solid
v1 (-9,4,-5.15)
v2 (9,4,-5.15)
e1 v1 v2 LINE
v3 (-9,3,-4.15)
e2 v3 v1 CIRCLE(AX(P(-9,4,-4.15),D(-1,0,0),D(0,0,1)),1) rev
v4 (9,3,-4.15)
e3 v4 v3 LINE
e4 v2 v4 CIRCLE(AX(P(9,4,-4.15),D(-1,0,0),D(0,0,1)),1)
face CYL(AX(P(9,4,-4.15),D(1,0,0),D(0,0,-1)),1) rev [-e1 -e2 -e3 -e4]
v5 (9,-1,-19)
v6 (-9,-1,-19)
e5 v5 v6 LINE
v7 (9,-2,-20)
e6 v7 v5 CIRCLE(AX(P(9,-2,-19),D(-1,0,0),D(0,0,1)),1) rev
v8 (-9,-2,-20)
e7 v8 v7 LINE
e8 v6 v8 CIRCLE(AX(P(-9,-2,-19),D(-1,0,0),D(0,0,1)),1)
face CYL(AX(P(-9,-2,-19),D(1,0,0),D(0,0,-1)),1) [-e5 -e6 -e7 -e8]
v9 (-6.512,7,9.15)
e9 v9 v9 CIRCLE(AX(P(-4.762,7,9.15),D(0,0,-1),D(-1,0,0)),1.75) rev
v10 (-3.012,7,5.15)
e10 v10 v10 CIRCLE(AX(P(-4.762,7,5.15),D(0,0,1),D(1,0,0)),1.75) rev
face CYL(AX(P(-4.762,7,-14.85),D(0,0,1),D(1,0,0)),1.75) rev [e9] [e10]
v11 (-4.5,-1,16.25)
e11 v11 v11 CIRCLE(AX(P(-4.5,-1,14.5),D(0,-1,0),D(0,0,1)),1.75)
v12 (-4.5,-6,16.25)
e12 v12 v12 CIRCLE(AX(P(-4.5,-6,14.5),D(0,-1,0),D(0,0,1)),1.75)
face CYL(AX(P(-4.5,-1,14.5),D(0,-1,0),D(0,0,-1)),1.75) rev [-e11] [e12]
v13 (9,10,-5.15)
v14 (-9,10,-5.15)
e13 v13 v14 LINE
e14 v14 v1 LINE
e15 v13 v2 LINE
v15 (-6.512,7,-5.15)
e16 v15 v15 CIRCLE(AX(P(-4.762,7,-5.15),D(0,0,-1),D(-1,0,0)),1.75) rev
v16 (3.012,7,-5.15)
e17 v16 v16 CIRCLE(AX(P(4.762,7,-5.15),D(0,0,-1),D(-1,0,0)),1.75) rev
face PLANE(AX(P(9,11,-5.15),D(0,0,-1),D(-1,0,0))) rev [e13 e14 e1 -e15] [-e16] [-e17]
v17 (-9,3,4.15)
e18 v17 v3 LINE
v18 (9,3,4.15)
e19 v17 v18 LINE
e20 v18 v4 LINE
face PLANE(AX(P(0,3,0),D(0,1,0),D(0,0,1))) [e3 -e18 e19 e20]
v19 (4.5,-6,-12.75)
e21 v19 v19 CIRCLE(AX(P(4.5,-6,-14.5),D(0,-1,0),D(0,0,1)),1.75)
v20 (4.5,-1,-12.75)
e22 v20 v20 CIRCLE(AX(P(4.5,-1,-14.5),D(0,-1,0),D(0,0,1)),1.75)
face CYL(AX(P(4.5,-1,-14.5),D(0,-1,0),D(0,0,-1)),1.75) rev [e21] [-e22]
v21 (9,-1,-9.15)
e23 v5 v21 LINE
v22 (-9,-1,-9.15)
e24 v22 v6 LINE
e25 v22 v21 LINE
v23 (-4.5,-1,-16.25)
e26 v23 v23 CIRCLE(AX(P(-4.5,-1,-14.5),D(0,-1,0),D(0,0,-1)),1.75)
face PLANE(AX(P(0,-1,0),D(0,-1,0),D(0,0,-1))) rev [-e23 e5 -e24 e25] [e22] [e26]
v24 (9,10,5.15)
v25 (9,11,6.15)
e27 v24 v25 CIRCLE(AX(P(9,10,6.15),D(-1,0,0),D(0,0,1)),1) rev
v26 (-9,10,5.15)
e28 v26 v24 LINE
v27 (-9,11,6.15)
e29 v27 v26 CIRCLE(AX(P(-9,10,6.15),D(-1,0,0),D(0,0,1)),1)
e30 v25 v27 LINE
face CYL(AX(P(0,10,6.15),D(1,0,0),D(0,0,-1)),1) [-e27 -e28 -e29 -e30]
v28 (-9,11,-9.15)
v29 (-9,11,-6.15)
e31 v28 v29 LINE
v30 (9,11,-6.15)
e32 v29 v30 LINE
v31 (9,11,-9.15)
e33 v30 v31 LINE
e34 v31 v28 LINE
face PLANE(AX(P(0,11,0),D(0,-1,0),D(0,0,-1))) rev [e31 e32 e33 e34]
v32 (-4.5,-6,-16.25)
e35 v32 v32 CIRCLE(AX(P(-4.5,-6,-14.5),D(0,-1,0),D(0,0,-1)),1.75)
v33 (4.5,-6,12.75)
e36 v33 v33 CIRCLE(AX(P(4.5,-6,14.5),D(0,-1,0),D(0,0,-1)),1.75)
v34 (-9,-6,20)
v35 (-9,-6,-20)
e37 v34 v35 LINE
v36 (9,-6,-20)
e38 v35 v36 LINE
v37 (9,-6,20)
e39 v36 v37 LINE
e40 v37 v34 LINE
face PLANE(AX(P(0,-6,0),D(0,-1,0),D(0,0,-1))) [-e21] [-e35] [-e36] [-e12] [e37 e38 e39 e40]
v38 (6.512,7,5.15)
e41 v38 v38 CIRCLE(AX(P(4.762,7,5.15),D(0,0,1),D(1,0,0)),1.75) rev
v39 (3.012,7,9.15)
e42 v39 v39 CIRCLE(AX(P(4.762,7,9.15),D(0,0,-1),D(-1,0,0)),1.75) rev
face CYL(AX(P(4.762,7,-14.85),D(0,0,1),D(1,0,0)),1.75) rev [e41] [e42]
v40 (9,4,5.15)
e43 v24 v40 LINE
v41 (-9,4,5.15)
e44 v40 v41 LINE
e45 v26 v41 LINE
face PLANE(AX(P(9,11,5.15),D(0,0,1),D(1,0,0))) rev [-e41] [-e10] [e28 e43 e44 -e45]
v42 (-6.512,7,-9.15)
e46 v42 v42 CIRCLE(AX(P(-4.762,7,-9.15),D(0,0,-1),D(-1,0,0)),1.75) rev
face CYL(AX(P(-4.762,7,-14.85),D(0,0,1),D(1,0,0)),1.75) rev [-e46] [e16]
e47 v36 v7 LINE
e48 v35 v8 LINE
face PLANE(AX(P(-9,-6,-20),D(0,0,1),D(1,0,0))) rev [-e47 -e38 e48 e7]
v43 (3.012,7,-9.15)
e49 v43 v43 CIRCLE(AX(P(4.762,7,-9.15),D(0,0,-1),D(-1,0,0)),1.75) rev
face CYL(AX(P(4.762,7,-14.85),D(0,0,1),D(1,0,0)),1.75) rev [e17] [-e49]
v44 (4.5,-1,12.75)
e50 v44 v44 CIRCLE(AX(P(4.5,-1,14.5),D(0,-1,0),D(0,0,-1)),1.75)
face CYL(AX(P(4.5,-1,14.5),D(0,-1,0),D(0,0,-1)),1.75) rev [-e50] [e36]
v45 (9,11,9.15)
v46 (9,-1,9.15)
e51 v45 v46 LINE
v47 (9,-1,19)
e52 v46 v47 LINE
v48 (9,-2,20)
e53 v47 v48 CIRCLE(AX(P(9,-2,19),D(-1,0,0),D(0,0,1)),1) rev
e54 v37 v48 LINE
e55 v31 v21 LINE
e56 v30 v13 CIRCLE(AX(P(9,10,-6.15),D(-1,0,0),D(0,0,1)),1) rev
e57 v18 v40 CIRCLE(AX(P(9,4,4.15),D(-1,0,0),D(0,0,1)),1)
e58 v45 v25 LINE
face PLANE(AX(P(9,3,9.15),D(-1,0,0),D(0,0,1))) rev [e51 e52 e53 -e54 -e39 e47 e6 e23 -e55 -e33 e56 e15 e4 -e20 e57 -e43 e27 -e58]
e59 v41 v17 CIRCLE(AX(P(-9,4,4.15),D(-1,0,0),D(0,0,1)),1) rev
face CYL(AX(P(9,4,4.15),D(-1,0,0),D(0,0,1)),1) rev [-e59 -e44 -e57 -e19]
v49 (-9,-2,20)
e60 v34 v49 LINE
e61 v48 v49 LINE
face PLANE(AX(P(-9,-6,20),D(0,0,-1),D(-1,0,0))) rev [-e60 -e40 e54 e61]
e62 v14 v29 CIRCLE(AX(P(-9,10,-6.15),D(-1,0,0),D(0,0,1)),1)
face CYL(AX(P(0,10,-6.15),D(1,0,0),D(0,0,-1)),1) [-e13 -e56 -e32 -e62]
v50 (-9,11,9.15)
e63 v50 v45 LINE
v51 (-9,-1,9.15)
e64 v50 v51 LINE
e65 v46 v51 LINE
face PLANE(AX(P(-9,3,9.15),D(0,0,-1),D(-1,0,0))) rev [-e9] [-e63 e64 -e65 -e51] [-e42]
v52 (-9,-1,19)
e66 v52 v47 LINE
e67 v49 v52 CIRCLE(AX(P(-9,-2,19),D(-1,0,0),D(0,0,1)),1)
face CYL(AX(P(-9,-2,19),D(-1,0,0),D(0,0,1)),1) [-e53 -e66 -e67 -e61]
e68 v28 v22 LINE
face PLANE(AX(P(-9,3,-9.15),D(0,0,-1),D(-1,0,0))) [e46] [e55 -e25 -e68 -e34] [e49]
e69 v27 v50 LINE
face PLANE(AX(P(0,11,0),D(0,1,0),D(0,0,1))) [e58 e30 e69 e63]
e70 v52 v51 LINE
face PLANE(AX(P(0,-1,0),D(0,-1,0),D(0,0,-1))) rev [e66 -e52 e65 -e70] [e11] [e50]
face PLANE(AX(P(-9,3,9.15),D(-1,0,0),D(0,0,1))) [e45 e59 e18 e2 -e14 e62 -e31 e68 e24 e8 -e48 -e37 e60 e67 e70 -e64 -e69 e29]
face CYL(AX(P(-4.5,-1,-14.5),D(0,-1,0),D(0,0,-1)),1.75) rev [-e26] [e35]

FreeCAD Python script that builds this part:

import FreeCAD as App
import Part
import Sketcher

V = App.Vector
Q = App.Units.Quantity


def edges_at(feature, points):
    """Names of the edges that pass closest to the given points."""
    edges = feature.Shape.Edges
    near = lambda p: min(range(len(edges)), key=lambda i: edges[i].distToShape(Part.Vertex(*p))[0])
    return sorted({f"Edge{near(p) + 1}" for p in points})


def add_polygon(sketch, points):
    """Adds a closed chain of lines whose ends are joined by coincident constraints."""
    first, n = sketch.GeometryCount, len(points)
    for a, b in zip(points, points[1:] + points[:1]):
        sketch.addGeometry(Part.LineSegment(App.Vector(*a, 0), App.Vector(*b, 0)), False)
    for i in range(n):
        sketch.addConstraint(Sketcher.Constraint("Coincident", first + i, 2, first + (i + 1) % n, 1))

doc = App.newDocument("Part")
body = doc.addObject("PartDesign::Body", "Body")

sketch1 = body.newObject("Sketcher::SketchObject", "Sketch")
sketch1.AttachmentSupport = (doc.getObject("XZ_Plane"), [""])
sketch1.MapMode = "FlatFace"
add_polygon(sketch1, [(-9, -9), (-9, 9), (9, 9), (9, -9)])
sketch1.addConstraint(Sketcher.Constraint("Vertical", 0))
sketch1.addConstraint(Sketcher.Constraint("Horizontal", 1))
sketch1.addConstraint(Sketcher.Constraint("Vertical", 2))
sketch1.addConstraint(Sketcher.Constraint("Horizontal", 3))
sketch1.addConstraint(Sketcher.Constraint("Symmetric", 0, 2, 2, 2, -1, 1))
sketch1.addConstraint(Sketcher.Constraint("DistanceX", 1, 1, 1, 2, Q("18 mm")))
sketch1.addConstraint(Sketcher.Constraint("DistanceY", 0, 1, 0, 2, Q("18.3 mm")))
pad1 = body.newObject("PartDesign::Pad", "Pad")
pad1.Profile = sketch1
pad1.Length = 3
pad1.Reversed = True

sketch2 = body.newObject("Sketcher::SketchObject", "Sketch001")
sketch2.AttachmentSupport = (doc.getObject("XZ_Plane"), [""])
sketch2.MapMode = "FlatFace"
sketch2.AttachmentOffset = App.Placement(V(0, 0, -3), App.Rotation())
add_polygon(sketch2, [(-9, 5.2), (-9, 9.2), (9, 9.2), (9, 5.2)])
add_polygon(sketch2, [(-9, -9.2), (-9, -5.2), (9, -5.2), (9, -9.2)])
sketch2.addConstraint(Sketcher.Constraint("Vertical", 0))
sketch2.addConstraint(Sketcher.Constraint("Horizontal", 1))
sketch2.addConstraint(Sketcher.Constraint("Vertical", 2))
sketch2.addConstraint(Sketcher.Constraint("Horizontal", 3))
sketch2.addConstraint(Sketcher.Constraint("Vertical", 4))
sketch2.addConstraint(Sketcher.Constraint("Horizontal", 5))
sketch2.addConstraint(Sketcher.Constraint("Vertical", 6))
sketch2.addConstraint(Sketcher.Constraint("Horizontal", 7))
sketch2.addConstraint(Sketcher.Constraint("Symmetric", 2, 2, 4, 2, -1, 1))
sketch2.addConstraint(Sketcher.Constraint("Symmetric", 0, 2, 6, 2, -1, 1))
sketch2.addConstraint(Sketcher.Constraint("Vertical", 3, 2, 4, 2))
sketch2.addConstraint(Sketcher.Constraint("DistanceX", 1, 1, 1, 2, Q("18 mm")))
sketch2.addConstraint(Sketcher.Constraint("DistanceY", 0, 1, 0, 2, Q("4 mm")))
sketch2.addConstraint(Sketcher.Constraint("DistanceY", 4, 2, 3, 2, Q("10.3 mm")))
pad2 = body.newObject("PartDesign::Pad", "Pad001")
pad2.Profile = sketch2
pad2.Length = 8
pad2.Reversed = True

sketch3 = body.newObject("Sketcher::SketchObject", "Sketch002")
sketch3.AttachmentSupport = (doc.getObject("XY_Plane"), [""])
sketch3.MapMode = "FlatFace"
sketch3.AttachmentOffset = App.Placement(V(0, 0, 5.15), App.Rotation())
sketch3.addGeometry(Part.Circle(V(4.8, 7, 0), V(0, 0, 1), 1.8), False)
sketch3.addGeometry(Part.Circle(V(-4.8, 7, 0), V(0, 0, 1), 1.8), False)
sketch3.addConstraint(Sketcher.Constraint("Equal", 0, 1))
sketch3.addConstraint(Sketcher.Constraint("Symmetric", 0, 3, 1, 3, -2))
sketch3.addConstraint(Sketcher.Constraint("Diameter", 0, Q("3.5 mm")))
sketch3.addConstraint(Sketcher.Constraint("DistanceY", -1, 1, 0, 3, Q("7 mm")))
sketch3.addConstraint(Sketcher.Constraint("DistanceX", -1, 1, 0, 3, Q("4.762 mm")))
pocket1 = body.newObject("PartDesign::Pocket", "Pocket")
pocket1.Profile = sketch3
pocket1.Type = "ThroughAll"
pocket1.Midplane = True
doc.recompute()

fillet = body.newObject("PartDesign::Fillet", "Fillet")
fillet.Base = (pocket1, edges_at(pocket1, [(0, 3, 5.15)]))
fillet.Radius = 1
doc.recompute()

fillet2 = body.newObject("PartDesign::Fillet", "Fillet001")
fillet2.Base = (fillet, edges_at(fillet, [(0, 3, -5.15)]))
fillet2.Radius = 1
doc.recompute()

fillet3 = body.newObject("PartDesign::Fillet", "Fillet002")
fillet3.Base = (fillet2, edges_at(fillet2, [(0, 11, 5.15), (0, 11, -5.15)]))
fillet3.Radius = 1

sketch4 = body.newObject("Sketcher::SketchObject", "Sketch003")
sketch4.AttachmentSupport = (doc.getObject("XZ_Plane"), [""])
sketch4.MapMode = "FlatFace"
add_polygon(sketch4, [(-9, 9), (-9, -9), (9, -9), (9, 9)])
sketch4.addConstraint(Sketcher.Constraint("Vertical", 0))
sketch4.addConstraint(Sketcher.Constraint("Horizontal", 1))
sketch4.addConstraint(Sketcher.Constraint("Vertical", 2))
sketch4.addConstraint(Sketcher.Constraint("Horizontal", 3))
sketch4.addConstraint(Sketcher.Constraint("Symmetric", 0, 2, 2, 2, -1, 1))
sketch4.addConstraint(Sketcher.Constraint("DistanceX", 1, 1, 1, 2, Q("18 mm")))
sketch4.addConstraint(Sketcher.Constraint("DistanceY", 0, 2, 0, 1, Q("18.3 mm")))
pad3 = body.newObject("PartDesign::Pad", "Pad002")
pad3.Profile = sketch4
pad3.Length = 1

sketch5 = body.newObject("Sketcher::SketchObject", "Sketch004")
sketch5.AttachmentSupport = (doc.getObject("XZ_Plane"), [""])
sketch5.MapMode = "FlatFace"
sketch5.AttachmentOffset = App.Placement(V(0, 0, 1), App.Rotation())
add_polygon(sketch5, [(9, -20), (9, 20), (-9, 20), (-9, -20)])
sketch5.addConstraint(Sketcher.Constraint("Vertical", 0))
sketch5.addConstraint(Sketcher.Constraint("Horizontal", 1))
sketch5.addConstraint(Sketcher.Constraint("Vertical", 2))
sketch5.addConstraint(Sketcher.Constraint("Horizontal", 3))
sketch5.addConstraint(Sketcher.Constraint("Symmetric", 0, 2, 2, 2, -1, 1))
sketch5.addConstraint(Sketcher.Constraint("DistanceX", 1, 2, 1, 1, Q("18 mm")))
sketch5.addConstraint(Sketcher.Constraint("DistanceY", 0, 1, 0, 2, Q("40 mm")))
pad4 = body.newObject("PartDesign::Pad", "Pad003")
pad4.Profile = sketch5
pad4.Length = 5

sketch6 = body.newObject("Sketcher::SketchObject", "Sketch005")
sketch6.AttachmentSupport = (doc.getObject("XZ_Plane"), [""])
sketch6.MapMode = "FlatFace"
sketch6.AttachmentOffset = App.Placement(V(0, 0, 6), App.Rotation())
sketch6.addGeometry(Part.Circle(V(4.5, 14.5, 0), V(0, 0, 1), 1.8), False)
sketch6.addGeometry(Part.Circle(V(-4.5, 14.5, 0), V(0, 0, 1), 1.8), False)
sketch6.addGeometry(Part.Circle(V(-4.5, -14.5, 0), V(0, 0, 1), 1.8), False)
sketch6.addGeometry(Part.Circle(V(4.5, -14.5, 0), V(0, 0, 1), 1.8), False)
sketch6.addConstraint(Sketcher.Constraint("Equal", 0, 1))
sketch6.addConstraint(Sketcher.Constraint("Equal", 1, 2))
sketch6.addConstraint(Sketcher.Constraint("Equal", 2, 3))
sketch6.addConstraint(Sketcher.Constraint("Symmetric", 0, 3, 2, 3, -1, 1))
sketch6.addConstraint(Sketcher.Constraint("Symmetric", 1, 3, 3, 3, -1, 1))
sketch6.addConstraint(Sketcher.Constraint("Symmetric", 0, 3, 1, 3, -2))
sketch6.addConstraint(Sketcher.Constraint("Diameter", 0, Q("3.5 mm")))
sketch6.addConstraint(Sketcher.Constraint("DistanceX", 1, 3, 0, 3, Q("9 mm")))
sketch6.addConstraint(Sketcher.Constraint("DistanceY", 2, 3, 1, 3, Q("29 mm")))
pocket2 = body.newObject("PartDesign::Pocket", "Pocket001")
pocket2.Profile = sketch6
pocket2.Length = 5
doc.recompute()

fillet4 = body.newObject("PartDesign::Fillet", "Fillet003")
fillet4.Base = (pocket2, edges_at(pocket2, [(0, -1, -20)]))
fillet4.Radius = 1
doc.recompute()

fillet5 = body.newObject("PartDesign::Fillet", "Fillet004")
fillet5.Base = (fillet4, edges_at(fillet4, [(0, -1, 20)]))
fillet5.Radius = 1

doc.recompute()
